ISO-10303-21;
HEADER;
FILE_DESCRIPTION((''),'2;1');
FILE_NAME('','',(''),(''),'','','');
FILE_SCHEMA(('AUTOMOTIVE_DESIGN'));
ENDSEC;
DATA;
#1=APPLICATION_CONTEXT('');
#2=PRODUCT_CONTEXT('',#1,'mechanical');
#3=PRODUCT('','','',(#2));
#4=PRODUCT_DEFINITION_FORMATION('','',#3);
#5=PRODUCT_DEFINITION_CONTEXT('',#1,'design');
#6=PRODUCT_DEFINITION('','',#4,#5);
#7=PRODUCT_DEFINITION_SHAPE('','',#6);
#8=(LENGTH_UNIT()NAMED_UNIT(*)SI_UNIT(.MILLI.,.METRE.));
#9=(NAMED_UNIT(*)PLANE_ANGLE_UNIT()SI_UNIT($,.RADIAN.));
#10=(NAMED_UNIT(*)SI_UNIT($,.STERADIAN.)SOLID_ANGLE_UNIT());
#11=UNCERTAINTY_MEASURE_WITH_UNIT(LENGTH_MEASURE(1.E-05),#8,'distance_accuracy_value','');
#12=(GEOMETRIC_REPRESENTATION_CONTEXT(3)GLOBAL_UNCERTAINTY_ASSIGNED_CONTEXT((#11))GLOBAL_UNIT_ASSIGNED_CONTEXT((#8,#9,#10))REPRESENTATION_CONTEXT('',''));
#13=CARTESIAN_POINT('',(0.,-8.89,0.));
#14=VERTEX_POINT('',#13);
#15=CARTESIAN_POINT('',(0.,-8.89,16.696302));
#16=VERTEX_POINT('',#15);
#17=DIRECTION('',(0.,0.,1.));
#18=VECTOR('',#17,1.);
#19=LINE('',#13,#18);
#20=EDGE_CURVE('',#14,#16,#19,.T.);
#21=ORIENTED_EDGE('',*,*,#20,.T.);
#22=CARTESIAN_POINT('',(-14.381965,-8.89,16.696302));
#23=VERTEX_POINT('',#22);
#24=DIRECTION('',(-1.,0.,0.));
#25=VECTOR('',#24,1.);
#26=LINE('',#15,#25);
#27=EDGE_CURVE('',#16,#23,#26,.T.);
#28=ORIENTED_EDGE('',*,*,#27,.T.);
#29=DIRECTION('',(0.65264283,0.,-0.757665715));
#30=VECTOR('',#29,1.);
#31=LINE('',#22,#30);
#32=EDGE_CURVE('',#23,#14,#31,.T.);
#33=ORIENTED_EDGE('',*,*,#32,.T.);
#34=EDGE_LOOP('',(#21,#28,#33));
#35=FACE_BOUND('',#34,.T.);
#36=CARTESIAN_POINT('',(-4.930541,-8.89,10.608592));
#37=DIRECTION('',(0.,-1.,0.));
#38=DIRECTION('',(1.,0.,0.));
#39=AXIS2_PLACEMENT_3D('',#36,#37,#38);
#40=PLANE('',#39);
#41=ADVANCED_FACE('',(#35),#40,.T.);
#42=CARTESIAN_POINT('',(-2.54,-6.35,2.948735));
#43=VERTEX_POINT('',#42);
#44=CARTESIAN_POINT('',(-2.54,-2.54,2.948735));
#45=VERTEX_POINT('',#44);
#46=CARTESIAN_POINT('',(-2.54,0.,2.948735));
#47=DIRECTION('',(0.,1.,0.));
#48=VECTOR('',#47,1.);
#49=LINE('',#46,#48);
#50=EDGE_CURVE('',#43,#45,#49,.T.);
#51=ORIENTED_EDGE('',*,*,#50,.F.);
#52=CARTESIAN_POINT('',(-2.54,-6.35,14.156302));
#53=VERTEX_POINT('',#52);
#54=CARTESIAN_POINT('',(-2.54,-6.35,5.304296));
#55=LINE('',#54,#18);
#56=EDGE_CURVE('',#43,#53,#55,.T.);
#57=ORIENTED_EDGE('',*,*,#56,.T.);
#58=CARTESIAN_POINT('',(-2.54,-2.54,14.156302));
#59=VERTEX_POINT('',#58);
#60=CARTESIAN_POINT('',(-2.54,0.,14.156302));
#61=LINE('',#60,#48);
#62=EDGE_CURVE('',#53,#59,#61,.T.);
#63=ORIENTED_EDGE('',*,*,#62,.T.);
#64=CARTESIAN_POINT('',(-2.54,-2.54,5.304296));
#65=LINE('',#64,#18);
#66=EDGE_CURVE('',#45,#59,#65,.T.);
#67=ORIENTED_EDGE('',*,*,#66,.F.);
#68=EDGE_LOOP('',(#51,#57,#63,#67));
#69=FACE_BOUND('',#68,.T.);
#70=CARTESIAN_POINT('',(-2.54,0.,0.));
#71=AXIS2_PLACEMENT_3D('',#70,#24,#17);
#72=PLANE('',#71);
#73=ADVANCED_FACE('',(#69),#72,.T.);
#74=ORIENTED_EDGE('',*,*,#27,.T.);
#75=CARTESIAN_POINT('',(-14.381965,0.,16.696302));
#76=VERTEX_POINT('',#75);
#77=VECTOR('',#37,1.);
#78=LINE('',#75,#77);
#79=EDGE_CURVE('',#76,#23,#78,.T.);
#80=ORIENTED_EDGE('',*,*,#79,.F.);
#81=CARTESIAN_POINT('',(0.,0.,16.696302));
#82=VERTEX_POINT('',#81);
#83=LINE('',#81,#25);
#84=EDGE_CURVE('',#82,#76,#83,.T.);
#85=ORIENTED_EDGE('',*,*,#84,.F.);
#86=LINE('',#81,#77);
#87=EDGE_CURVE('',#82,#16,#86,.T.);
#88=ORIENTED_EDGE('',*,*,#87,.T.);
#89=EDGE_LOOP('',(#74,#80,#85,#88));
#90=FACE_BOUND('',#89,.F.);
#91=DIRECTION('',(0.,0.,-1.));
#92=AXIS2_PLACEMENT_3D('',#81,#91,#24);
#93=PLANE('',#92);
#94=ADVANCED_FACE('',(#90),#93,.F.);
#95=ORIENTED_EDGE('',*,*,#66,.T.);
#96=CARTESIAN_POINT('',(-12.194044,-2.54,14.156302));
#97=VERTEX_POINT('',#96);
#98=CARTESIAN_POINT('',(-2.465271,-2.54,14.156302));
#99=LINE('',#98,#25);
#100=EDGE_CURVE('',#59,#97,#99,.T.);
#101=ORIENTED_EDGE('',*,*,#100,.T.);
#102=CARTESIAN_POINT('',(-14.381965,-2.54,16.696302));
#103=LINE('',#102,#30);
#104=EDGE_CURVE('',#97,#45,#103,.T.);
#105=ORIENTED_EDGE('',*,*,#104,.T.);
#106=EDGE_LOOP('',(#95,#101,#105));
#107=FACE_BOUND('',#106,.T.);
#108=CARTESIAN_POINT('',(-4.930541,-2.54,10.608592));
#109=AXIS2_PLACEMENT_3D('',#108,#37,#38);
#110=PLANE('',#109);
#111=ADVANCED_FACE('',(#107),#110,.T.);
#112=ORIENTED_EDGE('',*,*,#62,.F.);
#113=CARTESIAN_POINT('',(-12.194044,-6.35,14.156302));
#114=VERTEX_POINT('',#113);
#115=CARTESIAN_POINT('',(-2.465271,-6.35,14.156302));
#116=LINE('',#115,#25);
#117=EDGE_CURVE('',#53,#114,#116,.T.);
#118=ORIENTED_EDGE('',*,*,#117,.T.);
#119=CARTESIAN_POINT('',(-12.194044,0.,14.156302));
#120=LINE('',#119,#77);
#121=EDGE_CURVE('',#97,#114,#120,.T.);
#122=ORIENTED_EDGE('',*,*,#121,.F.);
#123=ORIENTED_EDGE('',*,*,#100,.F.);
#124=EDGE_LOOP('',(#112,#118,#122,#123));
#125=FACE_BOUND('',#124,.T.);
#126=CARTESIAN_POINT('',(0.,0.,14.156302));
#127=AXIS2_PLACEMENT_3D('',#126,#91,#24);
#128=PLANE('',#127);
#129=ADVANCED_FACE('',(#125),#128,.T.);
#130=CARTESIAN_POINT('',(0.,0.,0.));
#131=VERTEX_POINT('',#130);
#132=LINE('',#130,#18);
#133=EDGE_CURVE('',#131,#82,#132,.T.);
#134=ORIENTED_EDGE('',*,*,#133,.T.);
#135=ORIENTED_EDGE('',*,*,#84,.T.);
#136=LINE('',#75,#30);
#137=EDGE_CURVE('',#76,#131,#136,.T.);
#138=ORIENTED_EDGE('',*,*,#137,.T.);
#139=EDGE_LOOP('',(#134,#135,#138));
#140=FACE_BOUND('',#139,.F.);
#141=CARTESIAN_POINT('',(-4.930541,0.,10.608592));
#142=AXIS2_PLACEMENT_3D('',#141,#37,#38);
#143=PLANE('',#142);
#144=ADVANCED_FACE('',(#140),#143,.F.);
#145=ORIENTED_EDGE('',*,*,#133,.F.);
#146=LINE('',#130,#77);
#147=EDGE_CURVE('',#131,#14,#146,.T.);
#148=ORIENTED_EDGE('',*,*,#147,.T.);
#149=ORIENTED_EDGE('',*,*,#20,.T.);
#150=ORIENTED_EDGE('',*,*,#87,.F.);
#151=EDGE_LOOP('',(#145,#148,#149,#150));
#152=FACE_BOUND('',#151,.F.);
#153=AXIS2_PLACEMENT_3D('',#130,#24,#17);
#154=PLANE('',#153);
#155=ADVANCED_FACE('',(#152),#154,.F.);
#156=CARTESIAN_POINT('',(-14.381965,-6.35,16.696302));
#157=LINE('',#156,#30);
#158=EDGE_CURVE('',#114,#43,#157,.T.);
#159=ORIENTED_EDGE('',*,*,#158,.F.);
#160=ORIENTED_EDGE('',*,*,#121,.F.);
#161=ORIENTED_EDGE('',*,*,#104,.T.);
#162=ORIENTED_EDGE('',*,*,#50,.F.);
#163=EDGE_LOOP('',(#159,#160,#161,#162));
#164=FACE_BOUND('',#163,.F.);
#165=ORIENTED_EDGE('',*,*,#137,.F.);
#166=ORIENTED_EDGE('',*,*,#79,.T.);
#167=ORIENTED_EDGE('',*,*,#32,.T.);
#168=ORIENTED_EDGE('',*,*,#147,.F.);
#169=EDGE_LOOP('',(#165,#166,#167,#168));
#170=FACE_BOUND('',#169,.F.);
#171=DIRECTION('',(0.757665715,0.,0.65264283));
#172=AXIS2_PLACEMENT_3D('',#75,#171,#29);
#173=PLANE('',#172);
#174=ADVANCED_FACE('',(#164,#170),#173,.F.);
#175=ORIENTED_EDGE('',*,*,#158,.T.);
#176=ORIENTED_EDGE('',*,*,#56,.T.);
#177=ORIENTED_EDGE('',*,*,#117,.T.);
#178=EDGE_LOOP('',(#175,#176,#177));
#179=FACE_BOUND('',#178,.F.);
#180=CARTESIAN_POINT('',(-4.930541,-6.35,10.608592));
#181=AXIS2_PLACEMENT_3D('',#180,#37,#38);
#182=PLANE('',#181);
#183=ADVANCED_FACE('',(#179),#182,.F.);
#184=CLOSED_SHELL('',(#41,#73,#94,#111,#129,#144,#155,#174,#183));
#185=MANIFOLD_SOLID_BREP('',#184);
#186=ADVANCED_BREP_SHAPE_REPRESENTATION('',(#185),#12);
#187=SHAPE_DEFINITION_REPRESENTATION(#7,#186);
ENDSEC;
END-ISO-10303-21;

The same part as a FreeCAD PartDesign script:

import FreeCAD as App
import Part
import Sketcher

V = App.Vector


def faces_at(feature, points):
    """Names of the faces that lie closest to the given points."""
    faces = feature.Shape.Faces
    near = lambda p: min(range(len(faces)), key=lambda i: faces[i].distToShape(Part.Vertex(*p))[0])
    return sorted({f"Face{near(p) + 1}" for p in points})

doc = App.newDocument("Part")
params = doc.addObject("Spreadsheet::Sheet", "Params")
for row, (alias, value) in enumerate([
    ("pad1_length", "0.35 in"),
    ("thickness_wall", "0.1 in"),
], start=1):
    params.set(f"A{row}", alias)
    params.set(f"B{row}", "=" + value)
    params.setAlias(f"B{row}", alias)

body = doc.addObject("PartDesign::Body", "Body")

# Sketch on XZ plane
sketch1 = doc.addObject("Sketcher::SketchObject", "Sketch")
body.addObject(sketch1)
sketch1.AttachmentSupport = (doc.XZ_Plane, [""])
sketch1.MapMode = "FlatFace"
sketch1.addGeometry([
    Part.LineSegment(V(-14, 17, 0), V(0, 0, 0)),
    Part.LineSegment(V(0, 0, 0), V(0, 17, 0)),
    Part.LineSegment(V(0, 17, 0), V(-14, 17, 0)),
], False)
sketch1.addConstraint([
    Sketcher.Constraint("Coincident", 0, 2, 1, 1),
    Sketcher.Constraint("Coincident", 1, 2, 2, 1),
    Sketcher.Constraint("Coincident", 2, 2, 0, 1),
    Sketcher.Constraint("Vertical", 1),
    Sketcher.Constraint("Horizontal", 2),
    Sketcher.Constraint("Coincident", 0, 2, -1, 1),
    Sketcher.Constraint("DistanceY", 1, 1, 1, 2, 16.696302),
    Sketcher.Constraint("Distance", 0, 22.036502),
])
pad1 = doc.addObject("PartDesign::Pad", "Pad")
body.addObject(pad1)
pad1.Profile = sketch1
pad1.setExpression("Length", "Params.pad1_length")
doc.recompute()

thickness = doc.addObject("PartDesign::Thickness", "Thickness")
body.addObject(thickness)
thickness.Base = (pad1, faces_at(pad1, [(-7.191, -4.445, 8.348)]))
thickness.setExpression("Value", "Params.thickness_wall")
thickness.Reversed = True
thickness.Join = "Arc"

doc.recompute()
